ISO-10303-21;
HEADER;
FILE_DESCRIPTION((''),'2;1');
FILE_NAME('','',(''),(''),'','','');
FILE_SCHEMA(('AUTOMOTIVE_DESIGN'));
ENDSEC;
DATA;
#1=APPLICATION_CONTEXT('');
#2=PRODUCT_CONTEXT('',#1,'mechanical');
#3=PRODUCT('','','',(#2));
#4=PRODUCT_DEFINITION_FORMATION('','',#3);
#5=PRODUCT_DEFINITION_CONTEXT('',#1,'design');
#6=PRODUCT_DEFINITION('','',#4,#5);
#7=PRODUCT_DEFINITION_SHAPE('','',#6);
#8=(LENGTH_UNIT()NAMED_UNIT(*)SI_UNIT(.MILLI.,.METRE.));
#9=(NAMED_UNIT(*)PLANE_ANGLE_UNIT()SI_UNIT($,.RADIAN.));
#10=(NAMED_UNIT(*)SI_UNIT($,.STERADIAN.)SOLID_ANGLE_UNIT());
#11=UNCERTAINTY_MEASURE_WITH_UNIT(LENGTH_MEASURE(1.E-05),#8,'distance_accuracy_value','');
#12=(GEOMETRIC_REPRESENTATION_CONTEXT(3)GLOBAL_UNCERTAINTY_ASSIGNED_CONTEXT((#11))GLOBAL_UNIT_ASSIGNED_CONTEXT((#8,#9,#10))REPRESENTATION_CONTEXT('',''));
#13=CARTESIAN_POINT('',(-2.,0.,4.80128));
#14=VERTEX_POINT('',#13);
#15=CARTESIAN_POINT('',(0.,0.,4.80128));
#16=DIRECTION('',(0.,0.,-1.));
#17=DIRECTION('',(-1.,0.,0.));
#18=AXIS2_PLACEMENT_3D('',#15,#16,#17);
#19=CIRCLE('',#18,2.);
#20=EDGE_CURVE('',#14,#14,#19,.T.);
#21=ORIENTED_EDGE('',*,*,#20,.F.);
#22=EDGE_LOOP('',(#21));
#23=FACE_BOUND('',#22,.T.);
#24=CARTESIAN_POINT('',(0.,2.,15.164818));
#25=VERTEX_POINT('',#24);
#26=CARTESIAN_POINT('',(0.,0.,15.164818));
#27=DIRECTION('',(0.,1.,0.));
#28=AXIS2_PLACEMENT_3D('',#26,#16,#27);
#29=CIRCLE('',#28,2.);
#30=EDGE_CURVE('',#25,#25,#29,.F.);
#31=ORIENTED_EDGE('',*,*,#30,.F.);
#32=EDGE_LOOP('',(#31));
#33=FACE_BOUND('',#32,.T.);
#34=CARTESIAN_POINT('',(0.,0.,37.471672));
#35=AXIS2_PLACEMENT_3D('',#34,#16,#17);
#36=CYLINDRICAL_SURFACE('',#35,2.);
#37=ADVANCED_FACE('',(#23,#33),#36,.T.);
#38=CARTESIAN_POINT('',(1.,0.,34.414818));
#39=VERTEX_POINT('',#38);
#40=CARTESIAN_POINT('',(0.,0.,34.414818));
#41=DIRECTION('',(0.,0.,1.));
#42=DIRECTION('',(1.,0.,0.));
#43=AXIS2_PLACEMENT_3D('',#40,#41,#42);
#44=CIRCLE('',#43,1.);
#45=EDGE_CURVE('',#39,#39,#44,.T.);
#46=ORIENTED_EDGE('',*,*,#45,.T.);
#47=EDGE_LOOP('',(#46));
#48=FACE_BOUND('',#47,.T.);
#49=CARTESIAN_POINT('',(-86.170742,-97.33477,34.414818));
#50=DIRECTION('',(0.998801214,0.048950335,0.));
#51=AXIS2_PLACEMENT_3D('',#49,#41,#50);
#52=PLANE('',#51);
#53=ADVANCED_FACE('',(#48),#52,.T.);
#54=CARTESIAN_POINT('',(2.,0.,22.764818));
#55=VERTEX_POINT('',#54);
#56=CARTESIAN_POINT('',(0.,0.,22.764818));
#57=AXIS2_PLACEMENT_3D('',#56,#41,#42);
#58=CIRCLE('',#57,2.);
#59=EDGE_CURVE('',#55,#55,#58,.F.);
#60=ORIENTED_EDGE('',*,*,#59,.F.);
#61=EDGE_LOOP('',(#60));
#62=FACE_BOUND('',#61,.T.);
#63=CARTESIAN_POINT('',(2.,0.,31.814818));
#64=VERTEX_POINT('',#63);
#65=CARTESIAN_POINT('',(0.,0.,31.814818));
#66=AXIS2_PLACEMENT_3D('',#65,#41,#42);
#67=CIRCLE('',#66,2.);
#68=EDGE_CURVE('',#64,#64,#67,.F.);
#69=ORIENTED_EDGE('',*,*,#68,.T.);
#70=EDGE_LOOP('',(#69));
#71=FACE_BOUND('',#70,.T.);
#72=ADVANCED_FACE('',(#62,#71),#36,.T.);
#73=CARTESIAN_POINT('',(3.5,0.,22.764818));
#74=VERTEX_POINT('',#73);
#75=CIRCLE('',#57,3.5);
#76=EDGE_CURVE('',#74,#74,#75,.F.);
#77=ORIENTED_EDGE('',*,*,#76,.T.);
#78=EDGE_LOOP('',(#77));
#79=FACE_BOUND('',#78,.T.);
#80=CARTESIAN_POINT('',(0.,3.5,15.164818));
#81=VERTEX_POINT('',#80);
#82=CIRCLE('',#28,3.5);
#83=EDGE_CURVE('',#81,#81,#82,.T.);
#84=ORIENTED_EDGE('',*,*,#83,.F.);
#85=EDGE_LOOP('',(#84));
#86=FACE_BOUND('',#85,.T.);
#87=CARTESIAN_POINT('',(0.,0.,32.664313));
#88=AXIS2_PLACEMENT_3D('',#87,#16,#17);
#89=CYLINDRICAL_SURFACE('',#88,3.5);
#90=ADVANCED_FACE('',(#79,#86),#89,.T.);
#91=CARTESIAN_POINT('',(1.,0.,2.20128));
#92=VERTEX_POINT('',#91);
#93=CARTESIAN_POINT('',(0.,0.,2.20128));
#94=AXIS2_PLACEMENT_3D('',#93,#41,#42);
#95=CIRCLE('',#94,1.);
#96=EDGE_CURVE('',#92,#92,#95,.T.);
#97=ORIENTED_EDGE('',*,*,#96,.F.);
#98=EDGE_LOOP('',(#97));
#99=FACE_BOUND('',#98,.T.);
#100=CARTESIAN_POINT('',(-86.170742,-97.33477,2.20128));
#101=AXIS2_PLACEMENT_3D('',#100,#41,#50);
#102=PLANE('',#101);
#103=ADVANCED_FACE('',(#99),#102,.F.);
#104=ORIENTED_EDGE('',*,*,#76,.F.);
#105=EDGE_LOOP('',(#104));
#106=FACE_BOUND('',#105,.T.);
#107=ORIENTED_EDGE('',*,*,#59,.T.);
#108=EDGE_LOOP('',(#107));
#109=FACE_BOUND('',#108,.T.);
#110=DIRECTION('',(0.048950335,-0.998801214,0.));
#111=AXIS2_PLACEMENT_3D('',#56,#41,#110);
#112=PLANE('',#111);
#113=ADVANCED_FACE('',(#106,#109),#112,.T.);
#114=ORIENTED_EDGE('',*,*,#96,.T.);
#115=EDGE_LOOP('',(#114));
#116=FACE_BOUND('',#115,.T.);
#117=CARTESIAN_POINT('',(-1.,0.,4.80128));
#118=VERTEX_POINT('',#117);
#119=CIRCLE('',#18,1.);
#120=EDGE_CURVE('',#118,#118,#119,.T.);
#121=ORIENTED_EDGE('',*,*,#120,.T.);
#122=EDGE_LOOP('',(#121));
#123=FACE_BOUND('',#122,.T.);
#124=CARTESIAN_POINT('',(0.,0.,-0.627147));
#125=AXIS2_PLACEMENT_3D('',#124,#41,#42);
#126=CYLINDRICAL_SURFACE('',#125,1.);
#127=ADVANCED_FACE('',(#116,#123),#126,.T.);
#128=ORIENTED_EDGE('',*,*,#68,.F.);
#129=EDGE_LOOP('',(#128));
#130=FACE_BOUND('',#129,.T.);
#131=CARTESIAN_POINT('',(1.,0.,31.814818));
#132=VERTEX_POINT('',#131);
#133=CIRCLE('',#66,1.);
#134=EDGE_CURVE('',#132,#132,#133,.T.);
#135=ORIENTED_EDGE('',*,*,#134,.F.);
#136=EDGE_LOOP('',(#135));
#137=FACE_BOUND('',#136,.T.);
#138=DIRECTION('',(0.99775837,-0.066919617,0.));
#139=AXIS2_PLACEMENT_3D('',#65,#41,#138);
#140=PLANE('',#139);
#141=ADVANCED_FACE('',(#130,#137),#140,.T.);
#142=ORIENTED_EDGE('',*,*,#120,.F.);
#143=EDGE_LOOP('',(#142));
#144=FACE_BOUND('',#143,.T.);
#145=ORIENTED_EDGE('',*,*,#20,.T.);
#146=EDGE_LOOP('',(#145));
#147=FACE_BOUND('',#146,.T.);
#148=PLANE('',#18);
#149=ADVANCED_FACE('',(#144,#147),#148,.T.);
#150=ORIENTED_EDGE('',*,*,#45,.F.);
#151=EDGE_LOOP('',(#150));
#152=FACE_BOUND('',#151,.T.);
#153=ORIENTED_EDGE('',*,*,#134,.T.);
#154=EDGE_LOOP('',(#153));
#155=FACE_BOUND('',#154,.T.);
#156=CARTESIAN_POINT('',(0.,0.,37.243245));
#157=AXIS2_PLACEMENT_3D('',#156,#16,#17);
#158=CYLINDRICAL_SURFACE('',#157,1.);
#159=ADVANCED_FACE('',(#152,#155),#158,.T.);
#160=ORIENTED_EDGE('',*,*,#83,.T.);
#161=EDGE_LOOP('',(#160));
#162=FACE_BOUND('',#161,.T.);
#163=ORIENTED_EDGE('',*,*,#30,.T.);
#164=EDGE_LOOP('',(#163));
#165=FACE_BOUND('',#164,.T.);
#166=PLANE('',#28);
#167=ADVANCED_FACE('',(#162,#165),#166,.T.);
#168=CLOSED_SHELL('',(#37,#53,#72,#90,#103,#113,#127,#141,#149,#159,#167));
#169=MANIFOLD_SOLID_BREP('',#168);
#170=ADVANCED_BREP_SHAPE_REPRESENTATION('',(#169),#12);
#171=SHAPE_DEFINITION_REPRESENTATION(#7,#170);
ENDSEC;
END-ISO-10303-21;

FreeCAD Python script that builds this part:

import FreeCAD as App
import Part
import Sketcher
Q = App.Units.Quantity

doc = App.newDocument("Part")
body = doc.addObject("PartDesign::Body", "Body")

sketch1 = doc.addObject("Sketcher::SketchObject", "Sketch")
body.addObject(sketch1)
sketch1.AttachmentSupport = (doc.XY_Plane, [""])
sketch1.MapMode = "FlatFace"
sketch1.AttachmentOffset = App.Placement(App.Vector(0, 0, 4.80128), App.Rotation())
sketch1.addGeometry(Part.Circle(App.Vector(0, 0, 0), App.Vector(0, 0, 1), 2), False)
sketch1.addConstraint(Sketcher.Constraint("Coincident", 0, 3, -1, 1))
sketch1.addConstraint(Sketcher.Constraint("Diameter", 0, Q("4 mm")))
pad1 = doc.addObject("PartDesign::Pad", "Pad")
body.addObject(pad1)
pad1.Profile = sketch1
pad1.Length = 27.013538

sketch2 = doc.addObject("Sketcher::SketchObject", "Sketch001")
body.addObject(sketch2)
sketch2.AttachmentSupport = (doc.XY_Plane, [""])
sketch2.MapMode = "FlatFace"
sketch2.AttachmentOffset = App.Placement(App.Vector(0, 0, 31.814818), App.Rotation())
sketch2.addGeometry(Part.Circle(App.Vector(0, 0, 0), App.Vector(0, 0, 1), 1), False)
sketch2.addConstraint(Sketcher.Constraint("Coincident", 0, 3, -1, 1))
sketch2.addConstraint(Sketcher.Constraint("Diameter", 0, Q("2 mm")))
pad2 = doc.addObject("PartDesign::Pad", "Pad001")
body.addObject(pad2)
pad2.Profile = sketch2
pad2.Length = 2.6

sketch3 = doc.addObject("Sketcher::SketchObject", "Sketch002")
body.addObject(sketch3)
sketch3.AttachmentSupport = (doc.XY_Plane, [""])
sketch3.MapMode = "FlatFace"
sketch3.AttachmentOffset = App.Placement(App.Vector(0, 0, 4.80128), App.Rotation())
sketch3.addGeometry(Part.Circle(App.Vector(0, 0, 0), App.Vector(0, 0, 1), 1), False)
sketch3.addConstraint(Sketcher.Constraint("Coincident", 0, 3, -1, 1))
sketch3.addConstraint(Sketcher.Constraint("Diameter", 0, Q("2 mm")))
pad3 = doc.addObject("PartDesign::Pad", "Pad002")
body.addObject(pad3)
pad3.Profile = sketch3
pad3.Length = 2.6
pad3.Reversed = True

sketch4 = doc.addObject("Sketcher::SketchObject", "Sketch003")
body.addObject(sketch4)
sketch4.AttachmentSupport = (doc.XY_Plane, [""])
sketch4.MapMode = "FlatFace"
sketch4.AttachmentOffset = App.Placement(App.Vector(0, 0, 22.764818), App.Rotation())
sketch4.addGeometry(Part.Circle(App.Vector(0, 0, 0), App.Vector(0, 0, 1), 3.5), False)
sketch4.addConstraint(Sketcher.Constraint("Coincident", 0, 3, -1, 1))
sketch4.addConstraint(Sketcher.Constraint("Diameter", 0, Q("7 mm")))
pad4 = doc.addObject("PartDesign::Pad", "Pad003")
body.addObject(pad4)
pad4.Profile = sketch4
pad4.Length = 7.6
pad4.Reversed = True

doc.recompute()
